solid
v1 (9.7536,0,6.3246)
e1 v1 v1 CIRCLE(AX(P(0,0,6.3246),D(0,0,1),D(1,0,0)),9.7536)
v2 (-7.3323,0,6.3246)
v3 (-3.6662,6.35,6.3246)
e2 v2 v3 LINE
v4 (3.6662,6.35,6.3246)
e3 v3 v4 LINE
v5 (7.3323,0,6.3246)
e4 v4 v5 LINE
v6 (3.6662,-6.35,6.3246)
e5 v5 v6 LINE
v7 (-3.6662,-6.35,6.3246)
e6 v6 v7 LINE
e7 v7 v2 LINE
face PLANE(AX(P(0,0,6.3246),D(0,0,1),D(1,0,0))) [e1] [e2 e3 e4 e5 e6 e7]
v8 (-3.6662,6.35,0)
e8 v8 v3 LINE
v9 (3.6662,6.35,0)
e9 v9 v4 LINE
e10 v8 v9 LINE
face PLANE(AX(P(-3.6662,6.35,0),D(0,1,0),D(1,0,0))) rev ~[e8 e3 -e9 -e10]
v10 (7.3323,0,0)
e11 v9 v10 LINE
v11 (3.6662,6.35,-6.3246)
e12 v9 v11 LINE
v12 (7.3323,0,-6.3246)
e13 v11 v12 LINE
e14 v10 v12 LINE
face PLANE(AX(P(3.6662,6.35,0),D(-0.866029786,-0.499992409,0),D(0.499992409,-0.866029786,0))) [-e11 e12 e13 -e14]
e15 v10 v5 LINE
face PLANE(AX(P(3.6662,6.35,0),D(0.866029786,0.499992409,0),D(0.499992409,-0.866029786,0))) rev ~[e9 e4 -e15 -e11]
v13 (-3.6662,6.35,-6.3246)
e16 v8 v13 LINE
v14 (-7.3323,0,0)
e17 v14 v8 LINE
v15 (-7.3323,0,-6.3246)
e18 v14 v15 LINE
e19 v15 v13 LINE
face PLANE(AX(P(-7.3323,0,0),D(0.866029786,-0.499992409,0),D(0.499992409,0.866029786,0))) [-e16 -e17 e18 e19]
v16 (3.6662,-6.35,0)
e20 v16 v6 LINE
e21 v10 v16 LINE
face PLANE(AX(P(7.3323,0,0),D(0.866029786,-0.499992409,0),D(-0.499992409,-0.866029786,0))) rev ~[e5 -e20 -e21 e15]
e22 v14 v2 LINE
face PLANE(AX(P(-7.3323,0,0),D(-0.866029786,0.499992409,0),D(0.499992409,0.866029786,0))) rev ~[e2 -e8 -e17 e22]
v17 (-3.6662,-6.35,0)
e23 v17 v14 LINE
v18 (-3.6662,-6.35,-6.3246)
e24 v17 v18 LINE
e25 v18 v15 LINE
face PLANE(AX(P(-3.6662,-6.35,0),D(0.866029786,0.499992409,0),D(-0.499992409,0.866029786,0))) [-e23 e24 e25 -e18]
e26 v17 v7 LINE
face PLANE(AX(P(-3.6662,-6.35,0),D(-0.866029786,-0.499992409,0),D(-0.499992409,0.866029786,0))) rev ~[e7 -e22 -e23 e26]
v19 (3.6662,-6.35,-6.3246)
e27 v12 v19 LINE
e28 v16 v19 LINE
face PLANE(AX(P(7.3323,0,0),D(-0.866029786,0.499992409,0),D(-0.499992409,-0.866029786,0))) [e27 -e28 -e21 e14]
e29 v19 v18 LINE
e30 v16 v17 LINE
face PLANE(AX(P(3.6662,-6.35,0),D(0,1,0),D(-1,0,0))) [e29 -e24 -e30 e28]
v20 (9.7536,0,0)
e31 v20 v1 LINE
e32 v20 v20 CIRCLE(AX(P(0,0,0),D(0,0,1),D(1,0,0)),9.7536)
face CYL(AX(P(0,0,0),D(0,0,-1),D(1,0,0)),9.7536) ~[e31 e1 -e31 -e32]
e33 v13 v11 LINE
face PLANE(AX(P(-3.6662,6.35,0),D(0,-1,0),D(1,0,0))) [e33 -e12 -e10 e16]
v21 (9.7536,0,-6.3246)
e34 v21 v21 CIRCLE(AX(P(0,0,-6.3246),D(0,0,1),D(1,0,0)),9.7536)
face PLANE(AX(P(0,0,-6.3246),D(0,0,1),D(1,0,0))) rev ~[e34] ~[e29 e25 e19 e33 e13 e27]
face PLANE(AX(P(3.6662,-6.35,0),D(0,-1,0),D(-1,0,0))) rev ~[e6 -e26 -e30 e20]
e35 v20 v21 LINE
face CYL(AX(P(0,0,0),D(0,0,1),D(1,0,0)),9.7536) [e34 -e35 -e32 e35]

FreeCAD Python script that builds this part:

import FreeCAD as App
import Part
import Sketcher
Q = App.Units.Quantity


def add_polygon(sketch, points):
    """Adds a closed chain of lines whose ends are joined by coincident constraints."""
    first, n = sketch.GeometryCount, len(points)
    for a, b in zip(points, points[1:] + points[:1]):
        sketch.addGeometry(Part.LineSegment(App.Vector(*a, 0), App.Vector(*b, 0)), False)
    for i in range(n):
        sketch.addConstraint(Sketcher.Constraint("Coincident", first + i, 2, first + (i + 1) % n, 1))

doc = App.newDocument("Part")
body = doc.addObject("PartDesign::Body", "Body")

# Sketch on XY plane
sketch1 = body.newObject("Sketcher::SketchObject", "Sketch")
sketch1.AttachmentSupport = (doc.getObject("XY_Plane"), [""])
sketch1.MapMode = "FlatFace"
sketch1.addGeometry(Part.Circle(App.Vector(0, 0, 0), App.Vector(0, 0, 1), 10), False)  # 0
add_polygon(sketch1, [(4, 6), (7, 0), (4, -6), (-4, -6), (-7, 0), (-4, 6)])  # lines 1-6
sketch1.addConstraint([
    Sketcher.Constraint("Horizontal", 3),
    Sketcher.Constraint("Horizontal", 6),
    Sketcher.Constraint("Coincident", 0, 3, -1, 1),
    Sketcher.Constraint("Symmetric", 1, 2, 4, 2, -1, 1),
    Sketcher.Constraint("Symmetric", 2, 2, 5, 2, -1, 1),
    Sketcher.Constraint("PointOnObject", 1, 2, -1),
    Sketcher.Constraint("Parallel", 1, 4),
    Sketcher.Constraint("Vertical", 3, 2, 5, 2),
    Sketcher.Constraint("Diameter", 0, Q("0.768 in")),
    Sketcher.Constraint("DistanceY", 3, 2, 5, 2, Q("0.5 in")),
    Sketcher.Constraint("Angle", 1, Q("-60.0005 deg")),
    Sketcher.Constraint("DistanceX", 3, 2, 1, 2, Q("0.433 in")),
])
pad1 = body.newObject("PartDesign::Pad", "Pad")
pad1.Profile = sketch1
pad1.Length = Q("0.498 in")
pad1.Midplane = True

doc.recompute()
